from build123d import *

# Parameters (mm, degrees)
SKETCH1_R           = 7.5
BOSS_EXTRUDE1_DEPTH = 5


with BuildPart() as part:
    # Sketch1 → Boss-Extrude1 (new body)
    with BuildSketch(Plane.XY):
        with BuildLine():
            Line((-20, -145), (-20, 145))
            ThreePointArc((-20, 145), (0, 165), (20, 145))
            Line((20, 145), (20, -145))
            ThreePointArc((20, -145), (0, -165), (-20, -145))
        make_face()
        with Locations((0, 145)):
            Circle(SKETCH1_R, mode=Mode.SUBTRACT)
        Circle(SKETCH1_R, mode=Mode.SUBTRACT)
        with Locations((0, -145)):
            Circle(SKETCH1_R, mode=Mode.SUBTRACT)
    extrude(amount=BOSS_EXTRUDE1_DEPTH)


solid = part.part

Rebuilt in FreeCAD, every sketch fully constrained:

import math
import FreeCAD as App
import Part
import Sketcher
Q = App.Units.Quantity

doc = App.newDocument("Part")
body = doc.addObject("PartDesign::Body", "Body")

sketch1 = doc.addObject("Sketcher::SketchObject", "Sketch")
body.addObject(sketch1)
sketch1.AttachmentSupport = (doc.XY_Plane, [""])
sketch1.MapMode = "FlatFace"
sketch1.addGeometry([
    Part.LineSegment(App.Vector(-20, 145, 0), App.Vector(-20, -145, 0)),
    Part.ArcOfCircle(Part.Circle(App.Vector(0, -145, 0), App.Vector(0, 0, 1), 20), math.radians(180), math.radians(360)),
    Part.LineSegment(App.Vector(20, -145, 0), App.Vector(20, 145, 0)),
    Part.ArcOfCircle(Part.Circle(App.Vector(0, 145, 0), App.Vector(0, 0, 1), 20), math.radians(0), math.radians(180)),
    Part.Circle(App.Vector(0, -145, 0), App.Vector(0, 0, 1), 7.5),
    Part.Circle(App.Vector(0, 0, 0), App.Vector(0, 0, 1), 7.5),
    Part.Circle(App.Vector(0, 145, 0), App.Vector(0, 0, 1), 7.5),
], False)
sketch1.addConstraint([
    Sketcher.Constraint("Tangent", 0, 2, 1, 1),
    Sketcher.Constraint("Tangent", 1, 2, 2, 1),
    Sketcher.Constraint("Tangent", 2, 2, 3, 1),
    Sketcher.Constraint("Tangent", 3, 2, 0, 1),
    Sketcher.Constraint("Vertical", 0),
    Sketcher.Constraint("Vertical", 2),
    Sketcher.Constraint("Coincident", 5, 3, -1, 1),
    Sketcher.Constraint("Coincident", 4, 3, 1, 3),
    Sketcher.Constraint("Coincident", 6, 3, 3, 3),
    Sketcher.Constraint("Equal", 4, 5),
    Sketcher.Constraint("Equal", 5, 6),
    Sketcher.Constraint("Symmetric", 1, 3, 3, 3, -1, 1),
    Sketcher.Constraint("Diameter", 4, Q("15 mm")),
    Sketcher.Constraint("Radius", 1, Q("20 mm")),
    Sketcher.Constraint("DistanceY", 0, 2, 0, 1, Q("290 mm")),
])
pad1 = doc.addObject("PartDesign::Pad", "Pad")
body.addObject(pad1)
pad1.Profile = sketch1
pad1.Length = 5

doc.recompute()
